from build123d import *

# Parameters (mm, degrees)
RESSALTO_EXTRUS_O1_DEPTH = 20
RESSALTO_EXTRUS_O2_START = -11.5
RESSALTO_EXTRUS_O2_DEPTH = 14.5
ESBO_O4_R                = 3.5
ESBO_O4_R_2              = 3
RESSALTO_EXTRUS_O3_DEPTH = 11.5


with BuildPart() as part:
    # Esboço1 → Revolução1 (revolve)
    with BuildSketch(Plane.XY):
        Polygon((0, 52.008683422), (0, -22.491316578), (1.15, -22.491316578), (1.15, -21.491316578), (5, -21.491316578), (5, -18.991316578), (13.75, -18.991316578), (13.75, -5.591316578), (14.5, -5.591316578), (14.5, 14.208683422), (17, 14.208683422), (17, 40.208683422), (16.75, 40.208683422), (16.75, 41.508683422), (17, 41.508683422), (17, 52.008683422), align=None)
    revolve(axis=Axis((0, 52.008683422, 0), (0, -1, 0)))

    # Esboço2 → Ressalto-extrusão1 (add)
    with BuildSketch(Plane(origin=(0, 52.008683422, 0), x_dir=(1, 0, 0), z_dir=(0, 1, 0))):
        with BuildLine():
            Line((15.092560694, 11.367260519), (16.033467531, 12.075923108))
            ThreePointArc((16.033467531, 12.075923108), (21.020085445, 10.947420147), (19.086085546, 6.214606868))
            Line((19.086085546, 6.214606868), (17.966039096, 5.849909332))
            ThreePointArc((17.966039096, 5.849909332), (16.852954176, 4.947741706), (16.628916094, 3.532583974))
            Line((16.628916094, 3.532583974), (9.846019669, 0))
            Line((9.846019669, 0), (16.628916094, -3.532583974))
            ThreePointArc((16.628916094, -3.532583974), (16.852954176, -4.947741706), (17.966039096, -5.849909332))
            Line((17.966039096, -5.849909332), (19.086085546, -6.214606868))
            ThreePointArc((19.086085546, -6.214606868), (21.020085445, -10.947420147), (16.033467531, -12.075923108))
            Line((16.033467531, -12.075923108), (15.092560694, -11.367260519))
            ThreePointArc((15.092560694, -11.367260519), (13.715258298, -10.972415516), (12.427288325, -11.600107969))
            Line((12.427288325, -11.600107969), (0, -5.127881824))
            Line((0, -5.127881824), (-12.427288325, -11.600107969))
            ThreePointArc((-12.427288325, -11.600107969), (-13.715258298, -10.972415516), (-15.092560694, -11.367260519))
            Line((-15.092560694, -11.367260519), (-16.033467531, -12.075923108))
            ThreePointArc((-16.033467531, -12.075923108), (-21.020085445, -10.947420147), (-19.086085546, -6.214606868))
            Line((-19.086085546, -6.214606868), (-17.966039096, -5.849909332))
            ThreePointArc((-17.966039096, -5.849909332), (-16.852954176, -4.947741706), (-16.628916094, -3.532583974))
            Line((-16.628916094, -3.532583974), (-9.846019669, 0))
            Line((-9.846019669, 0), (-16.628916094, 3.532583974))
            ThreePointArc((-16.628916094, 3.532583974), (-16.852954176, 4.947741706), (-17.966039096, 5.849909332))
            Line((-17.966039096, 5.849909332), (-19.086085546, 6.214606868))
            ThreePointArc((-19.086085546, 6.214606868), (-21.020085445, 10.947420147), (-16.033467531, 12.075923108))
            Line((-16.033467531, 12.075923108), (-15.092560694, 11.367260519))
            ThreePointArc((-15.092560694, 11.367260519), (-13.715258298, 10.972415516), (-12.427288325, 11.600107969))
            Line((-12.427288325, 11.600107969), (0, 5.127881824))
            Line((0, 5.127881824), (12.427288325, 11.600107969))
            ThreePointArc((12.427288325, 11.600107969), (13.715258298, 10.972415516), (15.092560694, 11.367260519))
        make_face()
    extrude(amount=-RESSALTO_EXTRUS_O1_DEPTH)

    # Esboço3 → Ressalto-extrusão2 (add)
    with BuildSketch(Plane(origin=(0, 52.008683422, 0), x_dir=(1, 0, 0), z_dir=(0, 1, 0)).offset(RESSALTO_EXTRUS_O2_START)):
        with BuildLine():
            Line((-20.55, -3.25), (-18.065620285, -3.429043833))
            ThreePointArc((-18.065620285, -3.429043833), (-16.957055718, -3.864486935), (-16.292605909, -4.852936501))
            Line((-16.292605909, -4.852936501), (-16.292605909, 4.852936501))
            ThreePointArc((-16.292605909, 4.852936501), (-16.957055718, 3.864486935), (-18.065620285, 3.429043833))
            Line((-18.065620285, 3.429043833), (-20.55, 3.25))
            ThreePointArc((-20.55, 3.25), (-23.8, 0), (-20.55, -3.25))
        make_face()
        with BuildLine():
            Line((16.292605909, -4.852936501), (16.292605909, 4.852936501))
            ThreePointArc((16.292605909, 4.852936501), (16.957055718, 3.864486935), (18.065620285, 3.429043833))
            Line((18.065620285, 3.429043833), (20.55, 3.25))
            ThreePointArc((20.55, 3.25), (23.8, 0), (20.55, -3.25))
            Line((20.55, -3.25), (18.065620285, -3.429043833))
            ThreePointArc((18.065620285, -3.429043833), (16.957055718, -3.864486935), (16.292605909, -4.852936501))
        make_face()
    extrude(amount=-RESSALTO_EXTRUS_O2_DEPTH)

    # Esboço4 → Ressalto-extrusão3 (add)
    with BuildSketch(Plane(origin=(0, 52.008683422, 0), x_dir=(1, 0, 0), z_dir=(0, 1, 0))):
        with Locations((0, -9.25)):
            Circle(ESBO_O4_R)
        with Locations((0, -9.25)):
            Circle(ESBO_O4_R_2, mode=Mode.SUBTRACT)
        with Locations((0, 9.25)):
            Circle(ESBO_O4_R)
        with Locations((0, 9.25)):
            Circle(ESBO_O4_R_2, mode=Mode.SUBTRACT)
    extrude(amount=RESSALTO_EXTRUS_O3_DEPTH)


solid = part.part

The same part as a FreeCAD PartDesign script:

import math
import FreeCAD as App
import Part
import Sketcher
from FreeCAD import Vector


def add_polygon(sketch, points):
    """Adds a closed chain of lines whose ends are joined by coincident constraints."""
    first, n = sketch.GeometryCount, len(points)
    for a, b in zip(points, points[1:] + points[:1]):
        sketch.addGeometry(Part.LineSegment(App.Vector(*a, 0), App.Vector(*b, 0)), False)
    for i in range(n):
        sketch.addConstraint(Sketcher.Constraint("Coincident", first + i, 2, first + (i + 1) % n, 1))

doc = App.newDocument("Part")
body = doc.addObject("PartDesign::Body", "Body")

sketch1 = body.newObject("Sketcher::SketchObject", "Sketch")
sketch1.AttachmentSupport = (doc.getObject("XY_Plane"), [""])
sketch1.MapMode = "FlatFace"
add_polygon(sketch1, [(0, 52.01), (0, -22.49), (1.15, -22.49), (1.15, -21.49), (5, -21.49), (5, -18.99), (13.75, -18.99), (13.75, -5.59), (14.5, -5.59), (14.5, 14.21), (17, 14.21), (17, 40.21), (16.75, 40.21), (16.75, 41.51), (17, 41.51), (17, 52.01)])
sketch1.addConstraint([
    Sketcher.Constraint("Vertical", 0),
    Sketcher.Constraint("Horizontal", 1),
    Sketcher.Constraint("Vertical", 2),
    Sketcher.Constraint("Horizontal", 3),
    Sketcher.Constraint("Vertical", 4),
    Sketcher.Constraint("Horizontal", 5),
    Sketcher.Constraint("Vertical", 6),
    Sketcher.Constraint("Horizontal", 7),
    Sketcher.Constraint("Vertical", 8),
    Sketcher.Constraint("Horizontal", 9),
    Sketcher.Constraint("Vertical", 10),
    Sketcher.Constraint("Horizontal", 11),
    Sketcher.Constraint("Vertical", 12),
    Sketcher.Constraint("Horizontal", 13),
    Sketcher.Constraint("Vertical", 14),
    Sketcher.Constraint("Horizontal", 15),
    Sketcher.Constraint("PointOnObject", 0, 2, -2),
    Sketcher.Constraint("Vertical", 10, 2, 13, 2),
    Sketcher.Constraint("Equal", 9, 4),
    Sketcher.Constraint("DistanceX", 15, 2, 15, 1, 17.0),
    Sketcher.Constraint("DistanceY", 2, 1, 2, 2, 1.0),
    Sketcher.Constraint("DistanceY", 10, 1, 10, 2, 26.0),
    Sketcher.Constraint("DistanceX", 9, 1, 9, 2, 2.5),
    Sketcher.Constraint("DistanceY", 0, 2, 0, 1, 74.5),
    Sketcher.Constraint("DistanceY", 6, 1, 6, 2, 13.4),
    Sketcher.Constraint("DistanceY", 8, 1, 8, 2, 19.8),
    Sketcher.Constraint("DistanceY", 12, 1, 12, 2, 1.3),
    Sketcher.Constraint("DistanceX", -1, 1, 3, 2, 5.0),
    Sketcher.Constraint("DistanceX", 6, 2, 11, 2, 3.0),
    Sketcher.Constraint("DistanceX", 1, 1, 1, 2, 1.15),
    Sketcher.Constraint("DistanceX", 5, 1, 5, 2, 8.75),
    Sketcher.Constraint("DistanceY", 0, 2, -1, 1, 22.491317),
])
revolution = body.newObject("PartDesign::Revolution", "Revolution")
revolution.Profile = sketch1
revolution.ReferenceAxis = (sketch1, ["V_Axis"])
revolution.Angle = 360

sketch2 = body.newObject("Sketcher::SketchObject", "Sketch001")
sketch2.AttachmentSupport = (doc.getObject("XZ_Plane"), [""])
sketch2.MapMode = "FlatFace"
sketch2.AttachmentOffset = App.Placement(Vector(0, 0, -52.008683), App.Rotation())
sketch2.addGeometry([
    Part.LineSegment(Vector(16, -12.1, 0), Vector(15.1, -11.4, 0)),
    Part.ArcOfCircle(Part.Circle(Vector(13.9, -13, 0), Vector(0, 0, 1), 2), math.radians(53), math.radians(137)),
    Part.LineSegment(Vector(12.4, -11.6, 0), Vector(0, -5.1, 0)),
    Part.LineSegment(Vector(0, -5.1, 0), Vector(-12.4, -11.6, 0)),
    Part.ArcOfCircle(Part.Circle(Vector(-13.9, -13, 0), Vector(0, 0, 1), 2), math.radians(43), math.radians(127)),
    Part.LineSegment(Vector(-15.1, -11.4, 0), Vector(-16, -12.1, 0)),
    Part.ArcOfCircle(Part.Circle(Vector(-18, -9.4, 0), Vector(0, 0, 1), 3.4), math.radians(108), math.radians(307)),
    Part.LineSegment(Vector(-19.1, -6.2, 0), Vector(-18, -5.8, 0)),
    Part.ArcOfCircle(Part.Circle(Vector(-18.6, -3.9, 0), Vector(0, 0, 1), 2), math.radians(-72), math.radians(12)),
    Part.LineSegment(Vector(-16.6, -3.5, 0), Vector(-9.8, 0, 0)),
    Part.LineSegment(Vector(-9.8, 0, 0), Vector(-16.6, 3.5, 0)),
    Part.ArcOfCircle(Part.Circle(Vector(-18.6, 3.9, 0), Vector(0, 0, 1), 2), math.radians(-12), math.radians(72)),
    Part.LineSegment(Vector(-18, 5.8, 0), Vector(-19.1, 6.2, 0)),
    Part.ArcOfCircle(Part.Circle(Vector(-18, 9.4, 0), Vector(0, 0, 1), 3.4), math.radians(53), math.radians(252)),
    Part.LineSegment(Vector(-16, 12.1, 0), Vector(-15.1, 11.4, 0)),
    Part.ArcOfCircle(Part.Circle(Vector(-13.9, 13, 0), Vector(0, 0, 1), 2), math.radians(-127), math.radians(-43)),
    Part.LineSegment(Vector(-12.4, 11.6, 0), Vector(0, 5.1, 0)),
    Part.LineSegment(Vector(0, 5.1, 0), Vector(12.4, 11.6, 0)),
    Part.ArcOfCircle(Part.Circle(Vector(13.9, 13, 0), Vector(0, 0, 1), 2), math.radians(-137), math.radians(-53)),
    Part.LineSegment(Vector(15.1, 11.4, 0), Vector(16, 12.1, 0)),
    Part.ArcOfCircle(Part.Circle(Vector(18, 9.4, 0), Vector(0, 0, 1), 3.4), math.radians(-72), math.radians(127)),
    Part.LineSegment(Vector(19.1, 6.2, 0), Vector(18, 5.8, 0)),
    Part.ArcOfCircle(Part.Circle(Vector(18.6, 3.9, 0), Vector(0, 0, 1), 2), math.radians(108), math.radians(192)),
    Part.LineSegment(Vector(16.6, 3.5, 0), Vector(9.8, 0, 0)),
    Part.LineSegment(Vector(9.8, 0, 0), Vector(16.6, -3.5, 0)),
    Part.ArcOfCircle(Part.Circle(Vector(18.6, -3.9, 0), Vector(0, 0, 1), 2), math.radians(168), math.radians(252)),
    Part.LineSegment(Vector(18, -5.8, 0), Vector(19.1, -6.2, 0)),
    Part.ArcOfCircle(Part.Circle(Vector(18, -9.4, 0), Vector(0, 0, 1), 3.4), math.radians(-127), math.radians(72)),
], False)
sketch2.addConstraint([
    Sketcher.Constraint("Tangent", 0, 2, 1, 1),
    Sketcher.Constraint("Coincident", 1, 2, 2, 1),
    Sketcher.Constraint("Coincident", 2, 2, 3, 1),
    Sketcher.Constraint("Coincident", 3, 2, 4, 1),
    Sketcher.Constraint("Tangent", 4, 2, 5, 1),
    Sketcher.Constraint("Tangent", 5, 2, 6, 2),
    Sketcher.Constraint("Tangent", 6, 1, 7, 1),
    Sketcher.Constraint("Tangent", 7, 2, 8, 1),
    Sketcher.Constraint("Coincident", 8, 2, 9, 1),
    Sketcher.Constraint("Coincident", 9, 2, 10, 1),
    Sketcher.Constraint("Coincident", 10, 2, 11, 1),
    Sketcher.Constraint("Tangent", 11, 2, 12, 1),
    Sketcher.Constraint("Tangent", 12, 2, 13, 2),
    Sketcher.Constraint("Tangent", 13, 1, 14, 1),
    Sketcher.Constraint("Tangent", 14, 2, 15, 1),
    Sketcher.Constraint("Coincident", 15, 2, 16, 1),
    Sketcher.Constraint("Coincident", 16, 2, 17, 1),
    Sketcher.Constraint("Coincident", 17, 2, 18, 1),
    Sketcher.Constraint("Tangent", 18, 2, 19, 1),
    Sketcher.Constraint("Tangent", 19, 2, 20, 2),
    Sketcher.Constraint("Tangent", 20, 1, 21, 1),
    Sketcher.Constraint("Tangent", 21, 2, 22, 1),
    Sketcher.Constraint("Coincident", 22, 2, 23, 1),
    Sketcher.Constraint("Coincident", 23, 2, 24, 1),
    Sketcher.Constraint("Coincident", 24, 2, 25, 1),
    Sketcher.Constraint("Tangent", 25, 2, 26, 1),
    Sketcher.Constraint("Tangent", 26, 2, 27, 2),
    Sketcher.Constraint("Tangent", 27, 1, 0, 1),
    Sketcher.Constraint("Equal", 1, 4),
    Sketcher.Constraint("Equal", 4, 8),
    Sketcher.Constraint("Equal", 8, 11),
    Sketcher.Constraint("Equal", 6, 13),
    Sketcher.Constraint("Equal", 11, 15),
    Sketcher.Constraint("Equal", 15, 18),
    Sketcher.Constraint("Equal", 13, 20),
    Sketcher.Constraint("Equal", 18, 22),
    Sketcher.Constraint("Equal", 22, 25),
    Sketcher.Constraint("Equal", 20, 27),
    Sketcher.Constraint("Symmetric", 1, 3, 15, 3, -1, 1),
    Sketcher.Constraint("Symmetric", 4, 3, 18, 3, -1, 1),
    Sketcher.Constraint("Symmetric", 6, 3, 20, 3, -1, 1),
    Sketcher.Constraint("Symmetric", 8, 3, 22, 3, -1, 1),
    Sketcher.Constraint("Symmetric", 11, 3, 25, 3, -1, 1),
    Sketcher.Constraint("Symmetric", 13, 3, 27, 3, -1, 1),
    Sketcher.Constraint("Symmetric", 2, 2, 16, 2, -1, 1),
    Sketcher.Constraint("Symmetric", 9, 2, 23, 2, -1, 1),
    Sketcher.Constraint("Symmetric", 1, 3, 4, 3, -2),
    Sketcher.Constraint("Symmetric", 13, 3, 20, 3, -2),
    Sketcher.Constraint("Symmetric", 11, 3, 22, 3, -2),
    Sketcher.Constraint("PointOnObject", 2, 2, -2),
    Sketcher.Constraint("PointOnObject", 9, 2, -1),
    Sketcher.Constraint("Parallel", 3, 9),
    Sketcher.Constraint("Parallel", 2, 10),
    Sketcher.Constraint("Parallel", 10, 16),
    Sketcher.Constraint("Parallel", 9, 17),
    Sketcher.Constraint("Parallel", 17, 23),
    Sketcher.Constraint("Parallel", 16, 24),
    Sketcher.Constraint("Horizontal", 1, 2, 3, 2),
    Sketcher.Constraint("Equal", 5, 7),
    Sketcher.Constraint("Radius", 1, 2.0),
    Sketcher.Constraint("Radius", 6, 3.35),
    Sketcher.Constraint("DistanceY", 6, 3, -1, 1, 9.4),
    Sketcher.Constraint("DistanceX", 0, 2, 25, 3, 3.492698),
    Sketcher.Constraint("DistanceY", 8, 3, 8, 2, 0.415598),
    Sketcher.Constraint("DistanceY", 11, 2, 15, 2, 5.750199),
    Sketcher.Constraint("Distance", 2, 14.011681),
    Sketcher.Constraint("Distance", 9, 7.647668),
    Sketcher.Constraint("DistanceX", 6, 3, -1, 1, 18.048892),
    Sketcher.Constraint("DistanceX", 8, 3, -1, 1, 18.585259),
])
pad1 = body.newObject("PartDesign::Pad", "Pad")
pad1.Profile = sketch2
pad1.Length = 20

sketch3 = body.newObject("Sketcher::SketchObject", "Sketch002")
sketch3.AttachmentSupport = (doc.getObject("XZ_Plane"), [""])
sketch3.MapMode = "FlatFace"
sketch3.AttachmentOffset = App.Placement(Vector(0, 0, -40.508683), App.Rotation())
sketch3.addGeometry([
    Part.LineSegment(Vector(-20.6, 3.2, 0), Vector(-18.1, 3.4, 0)),
    Part.ArcOfCircle(Part.Circle(Vector(-18.2, 5.4, 0), Vector(0, 0, 1), 2), math.radians(-86), math.radians(-17)),
    Part.LineSegment(Vector(-16.3, 4.9, 0), Vector(-16.3, -4.9, 0)),
    Part.ArcOfCircle(Part.Circle(Vector(-18.2, -5.4, 0), Vector(0, 0, 1), 2), math.radians(17), math.radians(86)),
    Part.LineSegment(Vector(-18.1, -3.4, 0), Vector(-20.6, -3.2, 0)),
    Part.ArcOfCircle(Part.Circle(Vector(-20.6, 0, 0), Vector(0, 0, 1), 3.2), math.radians(90), math.radians(270)),
    Part.LineSegment(Vector(16.3, -4.9, 0), Vector(16.3, 4.9, 0)),
    Part.ArcOfCircle(Part.Circle(Vector(18.2, 5.4, 0), Vector(0, 0, 1), 2), math.radians(-163), math.radians(-94)),
    Part.LineSegment(Vector(18.1, 3.4, 0), Vector(20.6, 3.2, 0)),
    Part.ArcOfCircle(Part.Circle(Vector(20.6, 0, 0), Vector(0, 0, 1), 3.2), math.radians(-90), math.radians(90)),
    Part.LineSegment(Vector(20.6, -3.2, 0), Vector(18.1, -3.4, 0)),
    Part.ArcOfCircle(Part.Circle(Vector(18.2, -5.4, 0), Vector(0, 0, 1), 2), math.radians(94), math.radians(163)),
], False)
sketch3.addConstraint([
    Sketcher.Constraint("Tangent", 0, 2, 1, 1),
    Sketcher.Constraint("Coincident", 1, 2, 2, 1),
    Sketcher.Constraint("Coincident", 2, 2, 3, 1),
    Sketcher.Constraint("Tangent", 3, 2, 4, 1),
    Sketcher.Constraint("Coincident", 4, 2, 5, 2),
    Sketcher.Constraint("Coincident", 5, 1, 0, 1),
    Sketcher.Constraint("Coincident", 6, 2, 7, 1),
    Sketcher.Constraint("Tangent", 7, 2, 8, 1),
    Sketcher.Constraint("Coincident", 8, 2, 9, 2),
    Sketcher.Constraint("Coincident", 9, 1, 10, 1),
    Sketcher.Constraint("Tangent", 10, 2, 11, 1),
    Sketcher.Constraint("Coincident", 11, 2, 6, 1),
    Sketcher.Constraint("Vertical", 2),
    Sketcher.Constraint("Vertical", 6),
    Sketcher.Constraint("Equal", 1, 3),
    Sketcher.Constraint("Equal", 3, 7),
    Sketcher.Constraint("Equal", 5, 9),
    Sketcher.Constraint("Equal", 7, 11),
    Sketcher.Constraint("Symmetric", 3, 3, 7, 3, -1, 1),
    Sketcher.Constraint("Symmetric", 5, 3, 9, 3, -1, 1),
    Sketcher.Constraint("Symmetric", 1, 3, 11, 3, -1, 1),
    Sketcher.Constraint("Symmetric", 1, 3, 7, 3, -2),
    Sketcher.Constraint("Symmetric", 5, 1, 8, 2, -2),
    Sketcher.Constraint("Parallel", 4, 8),
    Sketcher.Constraint("Parallel", 0, 10),
    Sketcher.Constraint("Horizontal", 1, 2, 6, 2),
    Sketcher.Constraint("Vertical", 5, 3, 4, 2),
    Sketcher.Constraint("Radius", 1, 2.0),
    Sketcher.Constraint("Radius", 5, 3.25),
    Sketcher.Constraint("DistanceX", 5, 3, 9, 3, 41.1),
    Sketcher.Constraint("DistanceY", 2, 2, 2, 1, 9.705873),
    Sketcher.Constraint("DistanceY", -1, 1, 1, 3, 5.42387),
    Sketcher.Constraint("DistanceX", 0, 2, -1, 1, 18.06562),
])
pad2 = body.newObject("PartDesign::Pad", "Pad001")
pad2.Profile = sketch3
pad2.Length = 14.5

sketch4 = body.newObject("Sketcher::SketchObject", "Sketch003")
sketch4.AttachmentSupport = (doc.getObject("XZ_Plane"), [""])
sketch4.MapMode = "FlatFace"
sketch4.AttachmentOffset = App.Placement(Vector(0, 0, -52.008683), App.Rotation())
sketch4.addGeometry([
    Part.Circle(Vector(0, 9.2, 0), Vector(0, 0, 1), 3.5),
    Part.Circle(Vector(0, 9.2, 0), Vector(0, 0, 1), 3),
    Part.Circle(Vector(0, -9.2, 0), Vector(0, 0, 1), 3.5),
    Part.Circle(Vector(0, -9.2, 0), Vector(0, 0, 1), 3),
], False)
sketch4.addConstraint([
    Sketcher.Constraint("Coincident", 1, 3, 0, 3),
    Sketcher.Constraint("Coincident", 3, 3, 2, 3),
    Sketcher.Constraint("Equal", 0, 2),
    Sketcher.Constraint("Equal", 1, 3),
    Sketcher.Constraint("Symmetric", 0, 3, 2, 3, -1, 1),
    Sketcher.Constraint("PointOnObject", 0, 3, -2),
    Sketcher.Constraint("Diameter", 0, 7.0),
    Sketcher.Constraint("Diameter", 1, 6.0),
    Sketcher.Constraint("DistanceY", 2, 3, 0, 3, 18.5),
])
pad3 = body.newObject("PartDesign::Pad", "Pad002")
pad3.Profile = sketch4
pad3.Length = 11.5
pad3.Reversed = True

doc.recompute()
